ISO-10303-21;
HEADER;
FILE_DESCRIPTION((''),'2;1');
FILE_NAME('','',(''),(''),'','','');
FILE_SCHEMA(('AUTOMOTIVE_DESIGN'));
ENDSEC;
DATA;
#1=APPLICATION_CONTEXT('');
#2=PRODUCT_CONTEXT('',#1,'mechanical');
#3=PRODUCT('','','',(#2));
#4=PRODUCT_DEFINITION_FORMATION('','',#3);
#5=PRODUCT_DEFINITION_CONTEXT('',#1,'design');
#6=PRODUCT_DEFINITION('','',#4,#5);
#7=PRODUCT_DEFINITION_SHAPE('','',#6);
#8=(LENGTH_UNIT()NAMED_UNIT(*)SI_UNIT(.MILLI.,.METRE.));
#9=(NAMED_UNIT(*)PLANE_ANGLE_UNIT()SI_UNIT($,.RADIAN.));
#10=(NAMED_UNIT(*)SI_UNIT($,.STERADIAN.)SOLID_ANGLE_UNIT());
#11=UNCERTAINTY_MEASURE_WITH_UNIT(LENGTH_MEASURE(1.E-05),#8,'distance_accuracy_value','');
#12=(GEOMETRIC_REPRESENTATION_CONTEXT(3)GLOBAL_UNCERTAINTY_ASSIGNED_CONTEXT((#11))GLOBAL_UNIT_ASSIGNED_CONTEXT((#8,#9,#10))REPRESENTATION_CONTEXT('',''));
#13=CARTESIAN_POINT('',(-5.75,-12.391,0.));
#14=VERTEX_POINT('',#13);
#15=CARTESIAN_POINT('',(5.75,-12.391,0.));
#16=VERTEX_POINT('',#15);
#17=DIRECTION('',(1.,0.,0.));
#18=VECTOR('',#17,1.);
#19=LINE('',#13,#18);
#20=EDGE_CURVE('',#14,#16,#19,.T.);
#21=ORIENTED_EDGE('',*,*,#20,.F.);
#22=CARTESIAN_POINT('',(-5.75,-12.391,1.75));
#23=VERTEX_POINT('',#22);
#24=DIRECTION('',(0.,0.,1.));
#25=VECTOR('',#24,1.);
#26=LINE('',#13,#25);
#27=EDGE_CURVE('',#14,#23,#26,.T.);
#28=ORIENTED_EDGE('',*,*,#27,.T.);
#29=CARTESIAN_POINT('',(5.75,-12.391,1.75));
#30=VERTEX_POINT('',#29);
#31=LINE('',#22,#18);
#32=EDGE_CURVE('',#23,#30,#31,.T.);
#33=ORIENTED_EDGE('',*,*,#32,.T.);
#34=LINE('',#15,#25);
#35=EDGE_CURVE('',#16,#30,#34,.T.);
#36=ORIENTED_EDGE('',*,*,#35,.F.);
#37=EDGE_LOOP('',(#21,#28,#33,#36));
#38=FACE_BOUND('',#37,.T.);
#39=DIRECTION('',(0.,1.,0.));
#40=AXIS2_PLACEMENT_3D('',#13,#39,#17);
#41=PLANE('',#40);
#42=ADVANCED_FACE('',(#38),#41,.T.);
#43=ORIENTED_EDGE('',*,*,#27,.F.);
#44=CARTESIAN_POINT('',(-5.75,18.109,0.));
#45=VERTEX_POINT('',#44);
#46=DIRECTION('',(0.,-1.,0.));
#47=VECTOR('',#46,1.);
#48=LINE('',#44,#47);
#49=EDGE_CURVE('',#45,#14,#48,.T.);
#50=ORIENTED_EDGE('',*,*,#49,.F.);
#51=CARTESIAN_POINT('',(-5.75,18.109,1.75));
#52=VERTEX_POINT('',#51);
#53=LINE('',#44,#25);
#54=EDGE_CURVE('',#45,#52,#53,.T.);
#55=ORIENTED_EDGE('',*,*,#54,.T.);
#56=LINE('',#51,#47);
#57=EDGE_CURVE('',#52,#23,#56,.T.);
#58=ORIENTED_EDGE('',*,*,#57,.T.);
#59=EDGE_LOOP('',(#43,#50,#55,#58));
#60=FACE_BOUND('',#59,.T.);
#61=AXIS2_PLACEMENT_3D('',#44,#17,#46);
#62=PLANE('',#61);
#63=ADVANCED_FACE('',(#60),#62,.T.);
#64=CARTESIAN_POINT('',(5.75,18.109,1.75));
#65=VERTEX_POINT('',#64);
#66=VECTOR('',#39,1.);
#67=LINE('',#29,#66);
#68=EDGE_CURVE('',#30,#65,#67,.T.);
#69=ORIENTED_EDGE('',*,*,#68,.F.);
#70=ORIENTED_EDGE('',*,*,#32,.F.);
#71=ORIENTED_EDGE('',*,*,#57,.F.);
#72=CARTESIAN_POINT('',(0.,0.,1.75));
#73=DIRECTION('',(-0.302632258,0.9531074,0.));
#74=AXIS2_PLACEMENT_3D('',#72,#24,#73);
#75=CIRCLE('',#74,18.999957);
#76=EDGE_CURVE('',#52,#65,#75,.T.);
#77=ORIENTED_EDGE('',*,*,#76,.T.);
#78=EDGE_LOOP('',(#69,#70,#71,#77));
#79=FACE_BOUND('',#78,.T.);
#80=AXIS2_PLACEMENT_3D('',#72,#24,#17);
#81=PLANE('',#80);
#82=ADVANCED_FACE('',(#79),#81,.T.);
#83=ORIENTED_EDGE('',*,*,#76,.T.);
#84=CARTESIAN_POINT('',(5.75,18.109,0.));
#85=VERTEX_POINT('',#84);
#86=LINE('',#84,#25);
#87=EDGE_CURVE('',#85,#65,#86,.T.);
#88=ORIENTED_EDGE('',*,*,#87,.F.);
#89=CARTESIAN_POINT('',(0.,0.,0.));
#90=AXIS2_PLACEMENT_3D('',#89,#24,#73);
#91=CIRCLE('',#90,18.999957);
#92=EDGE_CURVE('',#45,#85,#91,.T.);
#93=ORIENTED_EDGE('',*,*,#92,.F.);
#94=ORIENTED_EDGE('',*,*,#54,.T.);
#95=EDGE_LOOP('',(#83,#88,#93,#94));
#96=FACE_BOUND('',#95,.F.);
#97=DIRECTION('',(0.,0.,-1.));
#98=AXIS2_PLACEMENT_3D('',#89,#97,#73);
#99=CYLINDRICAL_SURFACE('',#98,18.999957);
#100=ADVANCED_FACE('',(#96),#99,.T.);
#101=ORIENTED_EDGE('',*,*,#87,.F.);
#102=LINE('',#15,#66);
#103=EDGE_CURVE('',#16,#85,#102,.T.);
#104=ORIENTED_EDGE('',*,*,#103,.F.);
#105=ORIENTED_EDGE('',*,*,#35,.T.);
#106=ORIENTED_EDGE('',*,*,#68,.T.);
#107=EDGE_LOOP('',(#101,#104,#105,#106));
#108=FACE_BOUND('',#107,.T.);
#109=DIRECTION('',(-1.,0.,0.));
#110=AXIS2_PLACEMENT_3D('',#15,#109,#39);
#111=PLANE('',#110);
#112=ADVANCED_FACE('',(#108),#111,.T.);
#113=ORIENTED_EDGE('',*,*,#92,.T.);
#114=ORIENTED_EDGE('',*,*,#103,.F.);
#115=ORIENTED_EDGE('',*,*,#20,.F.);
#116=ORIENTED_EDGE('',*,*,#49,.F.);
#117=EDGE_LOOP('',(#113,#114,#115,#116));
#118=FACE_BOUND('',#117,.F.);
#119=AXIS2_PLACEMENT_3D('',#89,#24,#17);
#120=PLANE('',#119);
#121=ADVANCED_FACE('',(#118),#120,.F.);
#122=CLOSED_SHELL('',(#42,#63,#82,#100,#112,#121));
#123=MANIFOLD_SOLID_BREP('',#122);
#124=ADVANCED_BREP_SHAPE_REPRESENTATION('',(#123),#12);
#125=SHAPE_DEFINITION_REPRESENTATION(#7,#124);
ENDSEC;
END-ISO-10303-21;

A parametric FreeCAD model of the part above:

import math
import FreeCAD as App
import Part
import Sketcher
Q = App.Units.Quantity

doc = App.newDocument("Part")
body = doc.addObject("PartDesign::Body", "Body")

# Sketch on XY plane
sketch1 = doc.addObject("Sketcher::SketchObject", "Sketch")
body.addObject(sketch1)
sketch1.AttachmentSupport = (doc.XY_Plane, [""])
sketch1.MapMode = "FlatFace"
sketch1.addGeometry([
    Part.LineSegment(App.Vector(-6, -12, 0), App.Vector(-6, 18, 0)),
    Part.ArcOfCircle(Part.Circle(App.Vector(0, 0, 0), App.Vector(0, 0, 1), 19), math.radians(108), math.radians(432)),
    Part.LineSegment(App.Vector(6, 18, 0), App.Vector(6, -12, 0)),
    Part.LineSegment(App.Vector(6, -12, 0), App.Vector(-6, -12, 0)),
], False)
sketch1.addConstraint([
    Sketcher.Constraint("Coincident", 0, 2, 1, 1),
    Sketcher.Constraint("Coincident", 1, 2, 2, 1),
    Sketcher.Constraint("Coincident", 2, 2, 3, 1),
    Sketcher.Constraint("Coincident", 3, 2, 0, 1),
    Sketcher.Constraint("Vertical", 0),
    Sketcher.Constraint("Vertical", 2),
    Sketcher.Constraint("Horizontal", 3),
    Sketcher.Constraint("Coincident", 1, 3, -1, 1),
    Sketcher.Constraint("Horizontal", 0, 2, 1, 2),
    Sketcher.Constraint("Radius", 1, Q("19 mm")),
    Sketcher.Constraint("DistanceX", 3, 2, 3, 1, Q("11.5 mm")),
    Sketcher.Constraint("DistanceY", 0, 1, 0, 2, Q("30.5 mm")),
])
pad1 = doc.addObject("PartDesign::Pad", "Pad")
body.addObject(pad1)
pad1.Profile = sketch1
pad1.Length = 1.75

doc.recompute()
